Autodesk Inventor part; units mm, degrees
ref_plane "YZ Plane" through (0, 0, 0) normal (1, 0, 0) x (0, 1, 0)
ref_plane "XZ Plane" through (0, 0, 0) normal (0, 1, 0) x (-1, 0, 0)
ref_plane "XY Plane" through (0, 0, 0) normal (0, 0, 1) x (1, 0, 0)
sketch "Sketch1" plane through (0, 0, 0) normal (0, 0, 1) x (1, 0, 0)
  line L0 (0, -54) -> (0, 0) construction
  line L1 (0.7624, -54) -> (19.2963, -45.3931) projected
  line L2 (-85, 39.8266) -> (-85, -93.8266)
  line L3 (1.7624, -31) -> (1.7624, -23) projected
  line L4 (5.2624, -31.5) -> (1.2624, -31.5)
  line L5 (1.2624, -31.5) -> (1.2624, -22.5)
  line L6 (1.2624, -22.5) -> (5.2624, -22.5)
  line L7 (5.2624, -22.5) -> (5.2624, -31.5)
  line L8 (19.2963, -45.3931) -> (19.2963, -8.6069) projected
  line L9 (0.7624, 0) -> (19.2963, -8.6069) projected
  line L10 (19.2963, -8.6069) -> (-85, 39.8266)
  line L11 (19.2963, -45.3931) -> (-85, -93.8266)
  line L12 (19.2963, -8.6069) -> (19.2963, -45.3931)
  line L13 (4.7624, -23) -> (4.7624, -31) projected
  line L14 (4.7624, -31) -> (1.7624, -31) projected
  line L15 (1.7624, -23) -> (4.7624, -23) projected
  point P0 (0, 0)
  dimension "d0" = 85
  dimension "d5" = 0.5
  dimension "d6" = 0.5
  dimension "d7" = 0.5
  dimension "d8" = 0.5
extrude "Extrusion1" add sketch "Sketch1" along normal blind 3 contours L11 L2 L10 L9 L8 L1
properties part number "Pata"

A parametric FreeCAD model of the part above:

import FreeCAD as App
import Part
import Sketcher
from FreeCAD import Vector
Q = App.Units.Quantity

doc = App.newDocument("Part")
body = doc.addObject("PartDesign::Body", "Body")

# Sketch on XY plane
sketch1 = body.newObject("Sketcher::SketchObject", "Sketch")
sketch1.AttachmentSupport = (doc.getObject("XY_Plane"), [""])
sketch1.MapMode = "FlatFace"
sketch1.addGeometry([
    Part.LineSegment(Vector(-85, -93.8266, 0), Vector(0.762377, -53.999951, 0)),  # 0
    Part.LineSegment(Vector(0.7624, -54, 0), Vector(19.2963, -45.3931, 0)),  # 1
    Part.LineSegment(Vector(19.2963, -45.3931, 0), Vector(19.2963, -8.6069, 0)),  # 2
    Part.LineSegment(Vector(19.2963, -8.6069, 0), Vector(0.7624, 0, 0)),  # 3
    Part.LineSegment(Vector(0.762377, -0.000049, 0), Vector(-85, 39.8266, 0)),  # 4
    Part.LineSegment(Vector(-85, 39.8266, 0), Vector(-85, -93.8266, 0)),  # 5
    Part.LineSegment(Vector(5.2624, -22.5, 0), Vector(5.2624, -31.5, 0)),  # 6
    Part.LineSegment(Vector(5.2624, -31.5, 0), Vector(1.2624, -31.5, 0)),  # 7
    Part.LineSegment(Vector(1.2624, -31.5, 0), Vector(1.2624, -22.5, 0)),  # 8
    Part.LineSegment(Vector(1.2624, -22.5, 0), Vector(5.2624, -22.5, 0)),  # 9
], False)
sketch1.addConstraint([
    Sketcher.Constraint("Coincident", 0, 2, 1, 1),
    Sketcher.Constraint("Coincident", 1, 2, 2, 1),
    Sketcher.Constraint("Coincident", 2, 2, 3, 1),
    Sketcher.Constraint("Coincident", 3, 2, 4, 1),
    Sketcher.Constraint("Coincident", 4, 2, 5, 1),
    Sketcher.Constraint("Coincident", 5, 2, 0, 1),
    Sketcher.Constraint("Coincident", 6, 2, 7, 1),
    Sketcher.Constraint("Coincident", 7, 2, 8, 1),
    Sketcher.Constraint("Coincident", 8, 2, 9, 1),
    Sketcher.Constraint("Coincident", 9, 2, 6, 1),
    Sketcher.Constraint("Vertical", 2),
    Sketcher.Constraint("Vertical", 5),
    Sketcher.Constraint("Vertical", 6),
    Sketcher.Constraint("Horizontal", 7),
    Sketcher.Constraint("Vertical", 8),
    Sketcher.Constraint("Horizontal", 9),
    Sketcher.Constraint("PointOnObject", 3, 2, -1),
    Sketcher.Constraint("Parallel", 0, 1),
    Sketcher.Constraint("Parallel", 3, 4),
    Sketcher.Constraint("Vertical", 0, 2, 3, 2),
    Sketcher.Constraint("Equal", 1, 3),
    Sketcher.Constraint("DistanceX", 4, 2, -1, 1, Q("85 mm")),
    Sketcher.Constraint("DistanceX", 0, 2, 7, 2, Q("0.5 mm")),
    Sketcher.Constraint("DistanceX", 7, 2, 7, 1, Q("4 mm")),
    Sketcher.Constraint("DistanceY", 6, 2, 6, 1, Q("9 mm")),
    Sketcher.Constraint("DistanceY", 0, 2, -1, 1, Q("54 mm")),
    Sketcher.Constraint("DistanceY", 6, 2, -1, 1, Q("31.5 mm")),
    Sketcher.Constraint("Angle", 0, Q("24.9094 deg")),
    Sketcher.Constraint("DistanceY", 2, 1, 2, 2, Q("36.7862 mm")),
    Sketcher.Constraint("DistanceY", 5, 2, 5, 1, Q("133.6532 mm")),
])
pad1 = body.newObject("PartDesign::Pad", "Pad")
pad1.Profile = sketch1
pad1.Length = 3

doc.recompute()
